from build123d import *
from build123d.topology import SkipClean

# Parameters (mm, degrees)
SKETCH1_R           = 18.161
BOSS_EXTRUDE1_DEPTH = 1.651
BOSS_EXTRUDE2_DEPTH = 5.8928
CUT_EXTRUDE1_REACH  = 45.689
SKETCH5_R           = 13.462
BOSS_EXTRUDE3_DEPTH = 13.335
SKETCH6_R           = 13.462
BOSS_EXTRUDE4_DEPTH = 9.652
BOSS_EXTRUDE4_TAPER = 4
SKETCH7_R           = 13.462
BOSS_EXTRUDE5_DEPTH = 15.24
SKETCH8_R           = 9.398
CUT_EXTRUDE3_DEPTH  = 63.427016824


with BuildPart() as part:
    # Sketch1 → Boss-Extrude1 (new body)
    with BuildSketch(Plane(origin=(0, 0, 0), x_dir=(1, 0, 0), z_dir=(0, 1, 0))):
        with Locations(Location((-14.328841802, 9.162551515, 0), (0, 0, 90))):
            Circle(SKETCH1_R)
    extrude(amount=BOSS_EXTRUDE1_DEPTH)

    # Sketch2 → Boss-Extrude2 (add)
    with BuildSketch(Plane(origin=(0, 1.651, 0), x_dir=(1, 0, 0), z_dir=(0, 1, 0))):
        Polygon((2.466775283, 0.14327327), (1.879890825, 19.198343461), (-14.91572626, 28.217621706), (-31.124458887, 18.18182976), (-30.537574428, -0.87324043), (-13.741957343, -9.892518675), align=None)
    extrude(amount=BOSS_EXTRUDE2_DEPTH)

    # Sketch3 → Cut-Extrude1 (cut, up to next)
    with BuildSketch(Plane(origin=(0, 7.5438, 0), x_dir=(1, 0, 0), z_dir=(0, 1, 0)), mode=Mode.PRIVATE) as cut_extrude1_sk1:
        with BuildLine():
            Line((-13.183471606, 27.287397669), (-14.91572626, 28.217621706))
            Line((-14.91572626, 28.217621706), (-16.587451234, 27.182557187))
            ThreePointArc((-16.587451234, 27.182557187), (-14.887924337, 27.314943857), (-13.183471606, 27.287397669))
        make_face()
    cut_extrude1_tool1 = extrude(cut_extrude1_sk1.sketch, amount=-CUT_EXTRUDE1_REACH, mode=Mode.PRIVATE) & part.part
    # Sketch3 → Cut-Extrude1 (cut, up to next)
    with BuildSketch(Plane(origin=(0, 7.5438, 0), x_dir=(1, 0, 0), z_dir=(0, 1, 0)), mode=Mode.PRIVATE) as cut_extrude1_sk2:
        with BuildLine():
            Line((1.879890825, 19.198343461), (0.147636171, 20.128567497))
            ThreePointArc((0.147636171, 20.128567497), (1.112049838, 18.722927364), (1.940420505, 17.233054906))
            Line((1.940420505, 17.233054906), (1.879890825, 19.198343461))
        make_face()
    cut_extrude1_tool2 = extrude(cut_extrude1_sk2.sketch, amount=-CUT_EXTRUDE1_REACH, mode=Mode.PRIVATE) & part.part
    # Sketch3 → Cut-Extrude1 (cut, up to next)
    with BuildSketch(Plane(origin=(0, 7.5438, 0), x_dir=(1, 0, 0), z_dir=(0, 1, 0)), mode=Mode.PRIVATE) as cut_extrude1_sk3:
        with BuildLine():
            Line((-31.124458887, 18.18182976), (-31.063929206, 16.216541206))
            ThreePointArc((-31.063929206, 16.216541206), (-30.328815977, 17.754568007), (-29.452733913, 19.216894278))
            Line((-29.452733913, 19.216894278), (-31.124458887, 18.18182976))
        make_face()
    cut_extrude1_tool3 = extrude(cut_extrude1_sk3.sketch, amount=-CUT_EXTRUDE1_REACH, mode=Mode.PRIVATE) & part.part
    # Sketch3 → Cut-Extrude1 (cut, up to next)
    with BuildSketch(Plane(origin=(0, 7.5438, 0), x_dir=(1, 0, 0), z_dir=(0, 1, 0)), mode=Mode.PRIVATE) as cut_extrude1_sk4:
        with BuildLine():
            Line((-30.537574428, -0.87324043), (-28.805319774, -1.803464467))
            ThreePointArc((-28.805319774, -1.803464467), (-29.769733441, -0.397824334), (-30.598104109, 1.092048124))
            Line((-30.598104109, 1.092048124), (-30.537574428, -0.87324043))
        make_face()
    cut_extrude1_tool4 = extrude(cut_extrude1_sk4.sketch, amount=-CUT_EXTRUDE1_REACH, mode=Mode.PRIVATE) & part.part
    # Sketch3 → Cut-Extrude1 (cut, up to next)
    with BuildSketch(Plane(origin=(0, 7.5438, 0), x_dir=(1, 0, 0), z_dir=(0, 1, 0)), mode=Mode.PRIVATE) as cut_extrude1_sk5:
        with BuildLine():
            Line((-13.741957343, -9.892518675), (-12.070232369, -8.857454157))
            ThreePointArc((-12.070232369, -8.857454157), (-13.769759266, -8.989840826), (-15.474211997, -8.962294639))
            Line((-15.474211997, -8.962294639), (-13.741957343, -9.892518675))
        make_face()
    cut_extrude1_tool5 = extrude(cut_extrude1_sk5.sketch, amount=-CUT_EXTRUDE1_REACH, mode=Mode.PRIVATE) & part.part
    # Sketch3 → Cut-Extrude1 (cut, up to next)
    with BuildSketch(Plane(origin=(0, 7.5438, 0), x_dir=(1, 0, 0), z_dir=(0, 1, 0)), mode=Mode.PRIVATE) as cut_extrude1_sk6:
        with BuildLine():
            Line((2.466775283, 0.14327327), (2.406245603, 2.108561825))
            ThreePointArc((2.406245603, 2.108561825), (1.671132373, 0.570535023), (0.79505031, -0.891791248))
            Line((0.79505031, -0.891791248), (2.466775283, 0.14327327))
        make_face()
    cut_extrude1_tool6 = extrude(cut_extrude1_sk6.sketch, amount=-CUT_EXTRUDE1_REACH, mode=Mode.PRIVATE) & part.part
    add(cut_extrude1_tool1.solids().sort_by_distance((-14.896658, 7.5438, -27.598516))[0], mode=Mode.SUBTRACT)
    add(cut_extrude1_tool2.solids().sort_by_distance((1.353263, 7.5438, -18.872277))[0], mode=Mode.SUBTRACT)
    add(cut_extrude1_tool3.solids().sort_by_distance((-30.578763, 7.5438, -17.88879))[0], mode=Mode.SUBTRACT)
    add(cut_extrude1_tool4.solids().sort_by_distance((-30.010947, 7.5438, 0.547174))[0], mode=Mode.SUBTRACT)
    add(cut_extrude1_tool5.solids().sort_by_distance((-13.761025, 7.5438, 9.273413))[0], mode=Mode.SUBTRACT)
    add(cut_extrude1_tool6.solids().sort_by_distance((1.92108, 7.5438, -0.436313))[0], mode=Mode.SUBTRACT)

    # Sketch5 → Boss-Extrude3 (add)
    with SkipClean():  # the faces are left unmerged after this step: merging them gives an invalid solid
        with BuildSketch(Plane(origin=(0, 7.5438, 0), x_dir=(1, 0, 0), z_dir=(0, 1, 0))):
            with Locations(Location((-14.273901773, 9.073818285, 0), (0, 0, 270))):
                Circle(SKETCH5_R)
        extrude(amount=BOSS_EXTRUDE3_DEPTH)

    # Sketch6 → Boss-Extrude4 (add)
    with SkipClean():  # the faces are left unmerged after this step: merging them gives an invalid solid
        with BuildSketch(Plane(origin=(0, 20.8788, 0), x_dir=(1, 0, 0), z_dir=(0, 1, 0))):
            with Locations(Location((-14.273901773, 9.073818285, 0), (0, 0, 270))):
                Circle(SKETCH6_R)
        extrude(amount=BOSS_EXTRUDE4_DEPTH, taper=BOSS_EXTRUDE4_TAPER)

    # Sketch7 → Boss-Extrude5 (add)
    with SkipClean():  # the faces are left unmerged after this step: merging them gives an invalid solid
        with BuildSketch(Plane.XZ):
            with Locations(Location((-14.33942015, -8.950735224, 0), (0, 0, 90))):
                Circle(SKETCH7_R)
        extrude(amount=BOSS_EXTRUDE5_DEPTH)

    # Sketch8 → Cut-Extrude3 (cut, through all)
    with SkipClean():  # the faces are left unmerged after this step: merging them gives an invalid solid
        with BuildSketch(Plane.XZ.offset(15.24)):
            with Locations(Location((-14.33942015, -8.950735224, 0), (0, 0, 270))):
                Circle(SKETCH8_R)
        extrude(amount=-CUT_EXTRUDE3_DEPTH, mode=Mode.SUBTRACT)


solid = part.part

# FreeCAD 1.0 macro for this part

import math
import FreeCAD as App
import Part
import Sketcher
Q = App.Units.Quantity


def add_polygon(sketch, points):
    """Adds a closed chain of lines whose ends are joined by coincident constraints."""
    first, n = sketch.GeometryCount, len(points)
    for a, b in zip(points, points[1:] + points[:1]):
        sketch.addGeometry(Part.LineSegment(App.Vector(*a, 0), App.Vector(*b, 0)), False)
    for i in range(n):
        sketch.addConstraint(Sketcher.Constraint("Coincident", first + i, 2, first + (i + 1) % n, 1))

doc = App.newDocument("Part")
params = doc.addObject("Spreadsheet::Sheet", "Params")
for row, (alias, value) in enumerate([
    ("sketch1_diameter", "1.43 in"),
    ("pad1_length", "0.065 in"),
    ("pad2_length", "0.232 in"),
    ("sketch3_radius", "0.715 in"),
    ("sketch4_radius", "0.715 in"),
    ("sketch5_radius", "0.715 in"),
    ("sketch6_radius", "0.715 in"),
    ("sketch7_radius", "0.715 in"),
    ("sketch8_radius", "0.715 in"),
    ("sketch9_diameter", "1.06 in"),
    ("pad3_length", "0.525 in"),
    ("sketch10_diameter", "1.06 in"),
    ("pad4_length", "0.38 in"),
    ("pad4_taper", "-4 deg"),
    ("sketch11_diameter", "1.06 in"),
    ("pad5_length", "0.6 in"),
    ("sketch12_diameter", "0.74 in"),
], start=1):
    params.set(f"A{row}", alias)
    params.set(f"B{row}", "=" + value)
    params.setAlias(f"B{row}", alias)

body = doc.addObject("PartDesign::Body", "Body")

# Sketch on XZ plane
sketch1 = body.newObject("Sketcher::SketchObject", "Sketch")
sketch1.AttachmentSupport = (doc.getObject("XZ_Plane"), [""])
sketch1.MapMode = "FlatFace"
sketch1.addGeometry(Part.Circle(App.Vector(-14.328842, -9.162552, 0), App.Vector(0, 0, 1), 18.161), False)
sketch1.addConstraint([
    Sketcher.Constraint("Diameter", 0, Q("1.43 in")),
    Sketcher.Constraint("DistanceX", 0, 3, -1, 1, Q("14.328842 mm")),
    Sketcher.Constraint("DistanceY", 0, 3, -1, 1, Q("9.162552 mm")),
])
sketch1.setExpression("Constraints[0]", "Params.sketch1_diameter")
pad1 = body.newObject("PartDesign::Pad", "Pad")
pad1.Profile = sketch1
pad1.setExpression("Length", "Params.pad1_length")
pad1.Reversed = True

# Sketch on XZ plane
sketch2 = body.newObject("Sketcher::SketchObject", "Sketch001")
sketch2.AttachmentSupport = (doc.getObject("XZ_Plane"), [""])
sketch2.MapMode = "FlatFace"
sketch2.AttachmentOffset = App.Placement(App.Vector(0, 0, -0.065 * 25.4), App.Rotation())
add_polygon(sketch2, [(2.466775, -0.143273), (1.879891, -19.198343), (-14.915726, -28.217622), (-31.124459, -18.18183), (-30.537574, 0.87324), (-13.741957, 9.892519)])  # lines 0-5
sketch2.addConstraint([
    Sketcher.Constraint("Parallel", 0, 3),
    Sketcher.Constraint("Parallel", 1, 4),
    Sketcher.Constraint("Parallel", 2, 5),
    Sketcher.Constraint("Equal", 0, 1),
    Sketcher.Constraint("Equal", 1, 2),
    Sketcher.Constraint("Equal", 2, 3),
    Sketcher.Constraint("DistanceX", 2, 2, 4, 2, Q("17.382502 mm")),
    Sketcher.Constraint("DistanceX", -1, 1, 0, 2, Q("1.879891 mm")),
    Sketcher.Constraint("DistanceY", 1, 2, -1, 1, Q("28.217622 mm")),
    Sketcher.Constraint("DistanceX", 2, 2, -1, 1, Q("31.124459 mm")),
    Sketcher.Constraint("DistanceY", 2, 2, -1, 1, Q("18.18183 mm")),
    Sketcher.Constraint("DistanceY", -1, 1, 3, 2, Q("0.87324 mm")),
])
pad2 = body.newObject("PartDesign::Pad", "Pad001")
pad2.Profile = sketch2
pad2.setExpression("Length", "Params.pad2_length")
pad2.Reversed = True

# Sketch on XZ plane
sketch3 = body.newObject("Sketcher::SketchObject", "Sketch002")
sketch3.AttachmentSupport = (doc.getObject("XZ_Plane"), [""])
sketch3.MapMode = "FlatFace"
sketch3.AttachmentOffset = App.Placement(App.Vector(0, 0, -0.297 * 25.4), App.Rotation())
sketch3.addGeometry([
    Part.LineSegment(App.Vector(-13.183472, -27.287398, 0), App.Vector(-14.915726, -28.217622, 0)),
    Part.LineSegment(App.Vector(-14.915726, -28.217622, 0), App.Vector(-16.587451, -27.182557, 0)),
    Part.ArcOfCircle(Part.Circle(App.Vector(-14.328842, -9.162552, 0), App.Vector(0, 0, 1), 18.161), math.radians(-97.14414), math.radians(-86.384094)),
], False)
sketch3.addConstraint([
    Sketcher.Constraint("Coincident", 0, 2, 1, 1),
    Sketcher.Constraint("Coincident", 1, 2, 2, 1),
    Sketcher.Constraint("Coincident", 2, 2, 0, 1),
    Sketcher.Constraint("Equal", 0, 1),
    Sketcher.Constraint("Radius", 2, Q("0.715 in")),
    Sketcher.Constraint("Distance", 0, Q("1.96622 mm")),
    Sketcher.Constraint("DistanceX", 2, 3, -1, 1, Q("14.328842 mm")),
    Sketcher.Constraint("DistanceY", 2, 3, -1, 1, Q("9.162552 mm")),
    Sketcher.Constraint("DistanceY", 0, 2, -1, 1, Q("28.217622 mm")),
    Sketcher.Constraint("DistanceX", 1, 2, -1, 1, Q("16.587451 mm")),
])
sketch3.setExpression("Constraints[4]", "Params.sketch3_radius")
pocket1 = body.newObject("PartDesign::Pocket", "Pocket")
pocket1.Profile = sketch3
pocket1.Type = "UpToFirst"
pocket1.Reversed = True

# Sketch on XZ plane
sketch4 = body.newObject("Sketcher::SketchObject", "Sketch003")
sketch4.AttachmentSupport = (doc.getObject("XZ_Plane"), [""])
sketch4.MapMode = "FlatFace"
sketch4.AttachmentOffset = App.Placement(App.Vector(0, 0, -0.297 * 25.4), App.Rotation())
sketch4.addGeometry([
    Part.LineSegment(App.Vector(1.879891, -19.198343, 0), App.Vector(0.147636, -20.128567, 0)),
    Part.ArcOfCircle(Part.Circle(App.Vector(-14.328842, -9.162552, 0), App.Vector(0, 0, 1), 18.161), math.radians(-37.14414), math.radians(-26.384094)),
    Part.LineSegment(App.Vector(1.940421, -17.233055, 0), App.Vector(1.879891, -19.198343, 0)),
], False)
sketch4.addConstraint([
    Sketcher.Constraint("Coincident", 0, 2, 1, 1),
    Sketcher.Constraint("Coincident", 1, 2, 2, 1),
    Sketcher.Constraint("Coincident", 2, 2, 0, 1),
    Sketcher.Constraint("Equal", 0, 2),
    Sketcher.Constraint("Radius", 1, Q("0.715 in")),
    Sketcher.Constraint("Distance", 0, Q("1.96622 mm")),
    Sketcher.Constraint("DistanceX", 1, 3, -1, 1, Q("14.328842 mm")),
    Sketcher.Constraint("DistanceY", 1, 3, -1, 1, Q("9.162552 mm")),
    Sketcher.Constraint("DistanceX", -1, 1, 1, 2, Q("1.940421 mm")),
    Sketcher.Constraint("DistanceX", -1, 1, 2, 2, Q("1.879891 mm")),
])
sketch4.setExpression("Constraints[4]", "Params.sketch4_radius")
pocket2 = body.newObject("PartDesign::Pocket", "Pocket001")
pocket2.Profile = sketch4
pocket2.Type = "UpToFirst"
pocket2.Reversed = True

# Sketch on XZ plane
sketch5 = body.newObject("Sketcher::SketchObject", "Sketch004")
sketch5.AttachmentSupport = (doc.getObject("XZ_Plane"), [""])
sketch5.MapMode = "FlatFace"
sketch5.AttachmentOffset = App.Placement(App.Vector(0, 0, -0.297 * 25.4), App.Rotation())
sketch5.addGeometry([
    Part.LineSegment(App.Vector(-31.124459, -18.18183, 0), App.Vector(-31.063929, -16.216541, 0)),
    Part.ArcOfCircle(Part.Circle(App.Vector(-14.328842, -9.162552, 0), App.Vector(0, 0, 1), 18.161), math.radians(-157.14414), math.radians(-146.384094)),
    Part.LineSegment(App.Vector(-29.452734, -19.216894, 0), App.Vector(-31.124459, -18.18183, 0)),
], False)
sketch5.addConstraint([
    Sketcher.Constraint("Coincident", 0, 2, 1, 1),
    Sketcher.Constraint("Coincident", 1, 2, 2, 1),
    Sketcher.Constraint("Coincident", 2, 2, 0, 1),
    Sketcher.Constraint("Equal", 0, 2),
    Sketcher.Constraint("Radius", 1, Q("0.715 in")),
    Sketcher.Constraint("Distance", 0, Q("1.96622 mm")),
    Sketcher.Constraint("DistanceX", 1, 3, -1, 1, Q("14.328842 mm")),
    Sketcher.Constraint("DistanceY", 1, 3, -1, 1, Q("9.162552 mm")),
    Sketcher.Constraint("DistanceX", 0, 2, -1, 1, Q("31.063929 mm")),
    Sketcher.Constraint("DistanceX", 2, 2, -1, 1, Q("31.124459 mm")),
])
sketch5.setExpression("Constraints[4]", "Params.sketch5_radius")
pocket3 = body.newObject("PartDesign::Pocket", "Pocket002")
pocket3.Profile = sketch5
pocket3.Type = "UpToFirst"
pocket3.Reversed = True

# Sketch on XZ plane
sketch6 = body.newObject("Sketcher::SketchObject", "Sketch005")
sketch6.AttachmentSupport = (doc.getObject("XZ_Plane"), [""])
sketch6.MapMode = "FlatFace"
sketch6.AttachmentOffset = App.Placement(App.Vector(0, 0, -0.297 * 25.4), App.Rotation())
sketch6.addGeometry([
    Part.LineSegment(App.Vector(-30.537574, 0.87324, 0), App.Vector(-28.80532, 1.803464, 0)),
    Part.ArcOfCircle(Part.Circle(App.Vector(-14.328842, -9.162552, 0), App.Vector(0, 0, 1), 18.161), math.radians(142.85586), math.radians(153.615906)),
    Part.LineSegment(App.Vector(-30.598104, -1.092048, 0), App.Vector(-30.537574, 0.87324, 0)),
], False)
sketch6.addConstraint([
    Sketcher.Constraint("Coincident", 0, 2, 1, 1),
    Sketcher.Constraint("Coincident", 1, 2, 2, 1),
    Sketcher.Constraint("Coincident", 2, 2, 0, 1),
    Sketcher.Constraint("Equal", 0, 2),
    Sketcher.Constraint("Radius", 1, Q("0.715 in")),
    Sketcher.Constraint("Distance", 0, Q("1.96622 mm")),
    Sketcher.Constraint("DistanceX", 1, 3, -1, 1, Q("14.328842 mm")),
    Sketcher.Constraint("DistanceY", 1, 3, -1, 1, Q("9.162552 mm")),
    Sketcher.Constraint("DistanceX", 0, 2, -1, 1, Q("28.80532 mm")),
    Sketcher.Constraint("DistanceY", 1, 2, -1, 1, Q("1.092048 mm")),
])
sketch6.setExpression("Constraints[4]", "Params.sketch6_radius")
pocket4 = body.newObject("PartDesign::Pocket", "Pocket003")
pocket4.Profile = sketch6
pocket4.Type = "UpToFirst"
pocket4.Reversed = True

# Sketch on XZ plane
sketch7 = body.newObject("Sketcher::SketchObject", "Sketch006")
sketch7.AttachmentSupport = (doc.getObject("XZ_Plane"), [""])
sketch7.MapMode = "FlatFace"
sketch7.AttachmentOffset = App.Placement(App.Vector(0, 0, -0.297 * 25.4), App.Rotation())
sketch7.addGeometry([
    Part.LineSegment(App.Vector(-13.741957, 9.892519, 0), App.Vector(-12.070232, 8.857454, 0)),
    Part.ArcOfCircle(Part.Circle(App.Vector(-14.328842, -9.162552, 0), App.Vector(0, 0, 1), 18.161), math.radians(82.85586), math.radians(93.615906)),
    Part.LineSegment(App.Vector(-15.474212, 8.962295, 0), App.Vector(-13.741957, 9.892519, 0)),
], False)
sketch7.addConstraint([
    Sketcher.Constraint("Coincident", 0, 2, 1, 1),
    Sketcher.Constraint("Coincident", 1, 2, 2, 1),
    Sketcher.Constraint("Coincident", 2, 2, 0, 1),
    Sketcher.Constraint("Equal", 0, 2),
    Sketcher.Constraint("Radius", 1, Q("0.715 in")),
    Sketcher.Constraint("Distance", 0, Q("1.96622 mm")),
    Sketcher.Constraint("DistanceX", 1, 3, -1, 1, Q("14.328842 mm")),
    Sketcher.Constraint("DistanceY", 1, 3, -1, 1, Q("9.162552 mm")),
    Sketcher.Constraint("DistanceX", 1, 2, -1, 1, Q("15.474212 mm")),
    Sketcher.Constraint("DistanceY", -1, 1, 2, 2, Q("9.892519 mm")),
])
sketch7.setExpression("Constraints[4]", "Params.sketch7_radius")
pocket5 = body.newObject("PartDesign::Pocket", "Pocket004")
pocket5.Profile = sketch7
pocket5.Type = "UpToFirst"
pocket5.Reversed = True

# Sketch on XZ plane
sketch8 = body.newObject("Sketcher::SketchObject", "Sketch007")
sketch8.AttachmentSupport = (doc.getObject("XZ_Plane"), [""])
sketch8.MapMode = "FlatFace"
sketch8.AttachmentOffset = App.Placement(App.Vector(0, 0, -0.297 * 25.4), App.Rotation())
sketch8.addGeometry([
    Part.LineSegment(App.Vector(2.466775, -0.143273, 0), App.Vector(2.406246, -2.108562, 0)),
    Part.ArcOfCircle(Part.Circle(App.Vector(-14.328842, -9.162552, 0), App.Vector(0, 0, 1), 18.161), math.radians(22.85586), math.radians(33.615906)),
    Part.LineSegment(App.Vector(0.79505, 0.891791, 0), App.Vector(2.466775, -0.143273, 0)),
], False)
sketch8.addConstraint([
    Sketcher.Constraint("Coincident", 0, 2, 1, 1),
    Sketcher.Constraint("Coincident", 1, 2, 2, 1),
    Sketcher.Constraint("Coincident", 2, 2, 0, 1),
    Sketcher.Constraint("Equal", 0, 2),
    Sketcher.Constraint("Radius", 1, Q("0.715 in")),
    Sketcher.Constraint("Distance", 0, Q("1.96622 mm")),
    Sketcher.Constraint("DistanceX", 1, 3, -1, 1, Q("14.328842 mm")),
    Sketcher.Constraint("DistanceY", 1, 3, -1, 1, Q("9.162552 mm")),
    Sketcher.Constraint("DistanceY", 0, 2, -1, 1, Q("2.108562 mm")),
    Sketcher.Constraint("DistanceX", -1, 1, 1, 2, Q("0.79505 mm")),
])
sketch8.setExpression("Constraints[4]", "Params.sketch8_radius")
pocket6 = body.newObject("PartDesign::Pocket", "Pocket005")
pocket6.Profile = sketch8
pocket6.Type = "UpToFirst"
pocket6.Reversed = True

# Sketch on XZ plane
sketch9 = body.newObject("Sketcher::SketchObject", "Sketch008")
sketch9.AttachmentSupport = (doc.getObject("XZ_Plane"), [""])
sketch9.MapMode = "FlatFace"
sketch9.AttachmentOffset = App.Placement(App.Vector(0, 0, -0.297 * 25.4), App.Rotation())
sketch9.addGeometry(Part.Circle(App.Vector(-14.273902, -9.073818, 0), App.Vector(0, 0, 1), 13.462), False)
sketch9.addConstraint([
    Sketcher.Constraint("Diameter", 0, Q("1.06 in")),
    Sketcher.Constraint("DistanceX", 0, 3, -1, 1, Q("14.273902 mm")),
    Sketcher.Constraint("DistanceY", 0, 3, -1, 1, Q("9.073818 mm")),
])
sketch9.setExpression("Constraints[0]", "Params.sketch9_diameter")
pad3 = body.newObject("PartDesign::Pad", "Pad002")
pad3.Profile = sketch9
pad3.setExpression("Length", "Params.pad3_length")
pad3.Reversed = True

# Sketch on XZ plane
sketch10 = body.newObject("Sketcher::SketchObject", "Sketch009")
sketch10.AttachmentSupport = (doc.getObject("XZ_Plane"), [""])
sketch10.MapMode = "FlatFace"
sketch10.AttachmentOffset = App.Placement(App.Vector(0, 0, -0.822 * 25.4), App.Rotation())
sketch10.addGeometry(Part.Circle(App.Vector(-14.273902, -9.073818, 0), App.Vector(0, 0, 1), 13.462), False)
sketch10.addConstraint([
    Sketcher.Constraint("Diameter", 0, Q("1.06 in")),
    Sketcher.Constraint("DistanceX", 0, 3, -1, 1, Q("14.273902 mm")),
    Sketcher.Constraint("DistanceY", 0, 3, -1, 1, Q("9.073818 mm")),
])
sketch10.setExpression("Constraints[0]", "Params.sketch10_diameter")
pad4 = body.newObject("PartDesign::Pad", "Pad003")
pad4.Profile = sketch10
pad4.setExpression("Length", "Params.pad4_length")
pad4.Reversed = True
pad4.setExpression("TaperAngle", "Params.pad4_taper")

# Sketch on XZ plane
sketch11 = body.newObject("Sketcher::SketchObject", "Sketch010")
sketch11.AttachmentSupport = (doc.getObject("XZ_Plane"), [""])
sketch11.MapMode = "FlatFace"
sketch11.addGeometry(Part.Circle(App.Vector(-14.33942, -8.950735, 0), App.Vector(0, 0, 1), 13.462), False)
sketch11.addConstraint([
    Sketcher.Constraint("Diameter", 0, Q("1.06 in")),
    Sketcher.Constraint("DistanceX", 0, 3, -1, 1, Q("14.33942 mm")),
    Sketcher.Constraint("DistanceY", 0, 3, -1, 1, Q("8.950735 mm")),
])
sketch11.setExpression("Constraints[0]", "Params.sketch11_diameter")
pad5 = body.newObject("PartDesign::Pad", "Pad004")
pad5.Profile = sketch11
pad5.setExpression("Length", "Params.pad5_length")

# Sketch on XZ plane
sketch12 = body.newObject("Sketcher::SketchObject", "Sketch011")
sketch12.AttachmentSupport = (doc.getObject("XZ_Plane"), [""])
sketch12.MapMode = "FlatFace"
sketch12.AttachmentOffset = App.Placement(App.Vector(0, 0, 0.6 * 25.4), App.Rotation())
sketch12.addGeometry(Part.Circle(App.Vector(-14.33942, -8.950735, 0), App.Vector(0, 0, 1), 9.398), False)
sketch12.addConstraint([
    Sketcher.Constraint("Diameter", 0, Q("0.74 in")),
    Sketcher.Constraint("DistanceX", 0, 3, -1, 1, Q("14.33942 mm")),
    Sketcher.Constraint("DistanceY", 0, 3, -1, 1, Q("8.950735 mm")),
])
sketch12.setExpression("Constraints[0]", "Params.sketch12_diameter")
pocket7 = body.newObject("PartDesign::Pocket", "Pocket006")
pocket7.Profile = sketch12
pocket7.Type = "ThroughAll"

doc.recompute()
